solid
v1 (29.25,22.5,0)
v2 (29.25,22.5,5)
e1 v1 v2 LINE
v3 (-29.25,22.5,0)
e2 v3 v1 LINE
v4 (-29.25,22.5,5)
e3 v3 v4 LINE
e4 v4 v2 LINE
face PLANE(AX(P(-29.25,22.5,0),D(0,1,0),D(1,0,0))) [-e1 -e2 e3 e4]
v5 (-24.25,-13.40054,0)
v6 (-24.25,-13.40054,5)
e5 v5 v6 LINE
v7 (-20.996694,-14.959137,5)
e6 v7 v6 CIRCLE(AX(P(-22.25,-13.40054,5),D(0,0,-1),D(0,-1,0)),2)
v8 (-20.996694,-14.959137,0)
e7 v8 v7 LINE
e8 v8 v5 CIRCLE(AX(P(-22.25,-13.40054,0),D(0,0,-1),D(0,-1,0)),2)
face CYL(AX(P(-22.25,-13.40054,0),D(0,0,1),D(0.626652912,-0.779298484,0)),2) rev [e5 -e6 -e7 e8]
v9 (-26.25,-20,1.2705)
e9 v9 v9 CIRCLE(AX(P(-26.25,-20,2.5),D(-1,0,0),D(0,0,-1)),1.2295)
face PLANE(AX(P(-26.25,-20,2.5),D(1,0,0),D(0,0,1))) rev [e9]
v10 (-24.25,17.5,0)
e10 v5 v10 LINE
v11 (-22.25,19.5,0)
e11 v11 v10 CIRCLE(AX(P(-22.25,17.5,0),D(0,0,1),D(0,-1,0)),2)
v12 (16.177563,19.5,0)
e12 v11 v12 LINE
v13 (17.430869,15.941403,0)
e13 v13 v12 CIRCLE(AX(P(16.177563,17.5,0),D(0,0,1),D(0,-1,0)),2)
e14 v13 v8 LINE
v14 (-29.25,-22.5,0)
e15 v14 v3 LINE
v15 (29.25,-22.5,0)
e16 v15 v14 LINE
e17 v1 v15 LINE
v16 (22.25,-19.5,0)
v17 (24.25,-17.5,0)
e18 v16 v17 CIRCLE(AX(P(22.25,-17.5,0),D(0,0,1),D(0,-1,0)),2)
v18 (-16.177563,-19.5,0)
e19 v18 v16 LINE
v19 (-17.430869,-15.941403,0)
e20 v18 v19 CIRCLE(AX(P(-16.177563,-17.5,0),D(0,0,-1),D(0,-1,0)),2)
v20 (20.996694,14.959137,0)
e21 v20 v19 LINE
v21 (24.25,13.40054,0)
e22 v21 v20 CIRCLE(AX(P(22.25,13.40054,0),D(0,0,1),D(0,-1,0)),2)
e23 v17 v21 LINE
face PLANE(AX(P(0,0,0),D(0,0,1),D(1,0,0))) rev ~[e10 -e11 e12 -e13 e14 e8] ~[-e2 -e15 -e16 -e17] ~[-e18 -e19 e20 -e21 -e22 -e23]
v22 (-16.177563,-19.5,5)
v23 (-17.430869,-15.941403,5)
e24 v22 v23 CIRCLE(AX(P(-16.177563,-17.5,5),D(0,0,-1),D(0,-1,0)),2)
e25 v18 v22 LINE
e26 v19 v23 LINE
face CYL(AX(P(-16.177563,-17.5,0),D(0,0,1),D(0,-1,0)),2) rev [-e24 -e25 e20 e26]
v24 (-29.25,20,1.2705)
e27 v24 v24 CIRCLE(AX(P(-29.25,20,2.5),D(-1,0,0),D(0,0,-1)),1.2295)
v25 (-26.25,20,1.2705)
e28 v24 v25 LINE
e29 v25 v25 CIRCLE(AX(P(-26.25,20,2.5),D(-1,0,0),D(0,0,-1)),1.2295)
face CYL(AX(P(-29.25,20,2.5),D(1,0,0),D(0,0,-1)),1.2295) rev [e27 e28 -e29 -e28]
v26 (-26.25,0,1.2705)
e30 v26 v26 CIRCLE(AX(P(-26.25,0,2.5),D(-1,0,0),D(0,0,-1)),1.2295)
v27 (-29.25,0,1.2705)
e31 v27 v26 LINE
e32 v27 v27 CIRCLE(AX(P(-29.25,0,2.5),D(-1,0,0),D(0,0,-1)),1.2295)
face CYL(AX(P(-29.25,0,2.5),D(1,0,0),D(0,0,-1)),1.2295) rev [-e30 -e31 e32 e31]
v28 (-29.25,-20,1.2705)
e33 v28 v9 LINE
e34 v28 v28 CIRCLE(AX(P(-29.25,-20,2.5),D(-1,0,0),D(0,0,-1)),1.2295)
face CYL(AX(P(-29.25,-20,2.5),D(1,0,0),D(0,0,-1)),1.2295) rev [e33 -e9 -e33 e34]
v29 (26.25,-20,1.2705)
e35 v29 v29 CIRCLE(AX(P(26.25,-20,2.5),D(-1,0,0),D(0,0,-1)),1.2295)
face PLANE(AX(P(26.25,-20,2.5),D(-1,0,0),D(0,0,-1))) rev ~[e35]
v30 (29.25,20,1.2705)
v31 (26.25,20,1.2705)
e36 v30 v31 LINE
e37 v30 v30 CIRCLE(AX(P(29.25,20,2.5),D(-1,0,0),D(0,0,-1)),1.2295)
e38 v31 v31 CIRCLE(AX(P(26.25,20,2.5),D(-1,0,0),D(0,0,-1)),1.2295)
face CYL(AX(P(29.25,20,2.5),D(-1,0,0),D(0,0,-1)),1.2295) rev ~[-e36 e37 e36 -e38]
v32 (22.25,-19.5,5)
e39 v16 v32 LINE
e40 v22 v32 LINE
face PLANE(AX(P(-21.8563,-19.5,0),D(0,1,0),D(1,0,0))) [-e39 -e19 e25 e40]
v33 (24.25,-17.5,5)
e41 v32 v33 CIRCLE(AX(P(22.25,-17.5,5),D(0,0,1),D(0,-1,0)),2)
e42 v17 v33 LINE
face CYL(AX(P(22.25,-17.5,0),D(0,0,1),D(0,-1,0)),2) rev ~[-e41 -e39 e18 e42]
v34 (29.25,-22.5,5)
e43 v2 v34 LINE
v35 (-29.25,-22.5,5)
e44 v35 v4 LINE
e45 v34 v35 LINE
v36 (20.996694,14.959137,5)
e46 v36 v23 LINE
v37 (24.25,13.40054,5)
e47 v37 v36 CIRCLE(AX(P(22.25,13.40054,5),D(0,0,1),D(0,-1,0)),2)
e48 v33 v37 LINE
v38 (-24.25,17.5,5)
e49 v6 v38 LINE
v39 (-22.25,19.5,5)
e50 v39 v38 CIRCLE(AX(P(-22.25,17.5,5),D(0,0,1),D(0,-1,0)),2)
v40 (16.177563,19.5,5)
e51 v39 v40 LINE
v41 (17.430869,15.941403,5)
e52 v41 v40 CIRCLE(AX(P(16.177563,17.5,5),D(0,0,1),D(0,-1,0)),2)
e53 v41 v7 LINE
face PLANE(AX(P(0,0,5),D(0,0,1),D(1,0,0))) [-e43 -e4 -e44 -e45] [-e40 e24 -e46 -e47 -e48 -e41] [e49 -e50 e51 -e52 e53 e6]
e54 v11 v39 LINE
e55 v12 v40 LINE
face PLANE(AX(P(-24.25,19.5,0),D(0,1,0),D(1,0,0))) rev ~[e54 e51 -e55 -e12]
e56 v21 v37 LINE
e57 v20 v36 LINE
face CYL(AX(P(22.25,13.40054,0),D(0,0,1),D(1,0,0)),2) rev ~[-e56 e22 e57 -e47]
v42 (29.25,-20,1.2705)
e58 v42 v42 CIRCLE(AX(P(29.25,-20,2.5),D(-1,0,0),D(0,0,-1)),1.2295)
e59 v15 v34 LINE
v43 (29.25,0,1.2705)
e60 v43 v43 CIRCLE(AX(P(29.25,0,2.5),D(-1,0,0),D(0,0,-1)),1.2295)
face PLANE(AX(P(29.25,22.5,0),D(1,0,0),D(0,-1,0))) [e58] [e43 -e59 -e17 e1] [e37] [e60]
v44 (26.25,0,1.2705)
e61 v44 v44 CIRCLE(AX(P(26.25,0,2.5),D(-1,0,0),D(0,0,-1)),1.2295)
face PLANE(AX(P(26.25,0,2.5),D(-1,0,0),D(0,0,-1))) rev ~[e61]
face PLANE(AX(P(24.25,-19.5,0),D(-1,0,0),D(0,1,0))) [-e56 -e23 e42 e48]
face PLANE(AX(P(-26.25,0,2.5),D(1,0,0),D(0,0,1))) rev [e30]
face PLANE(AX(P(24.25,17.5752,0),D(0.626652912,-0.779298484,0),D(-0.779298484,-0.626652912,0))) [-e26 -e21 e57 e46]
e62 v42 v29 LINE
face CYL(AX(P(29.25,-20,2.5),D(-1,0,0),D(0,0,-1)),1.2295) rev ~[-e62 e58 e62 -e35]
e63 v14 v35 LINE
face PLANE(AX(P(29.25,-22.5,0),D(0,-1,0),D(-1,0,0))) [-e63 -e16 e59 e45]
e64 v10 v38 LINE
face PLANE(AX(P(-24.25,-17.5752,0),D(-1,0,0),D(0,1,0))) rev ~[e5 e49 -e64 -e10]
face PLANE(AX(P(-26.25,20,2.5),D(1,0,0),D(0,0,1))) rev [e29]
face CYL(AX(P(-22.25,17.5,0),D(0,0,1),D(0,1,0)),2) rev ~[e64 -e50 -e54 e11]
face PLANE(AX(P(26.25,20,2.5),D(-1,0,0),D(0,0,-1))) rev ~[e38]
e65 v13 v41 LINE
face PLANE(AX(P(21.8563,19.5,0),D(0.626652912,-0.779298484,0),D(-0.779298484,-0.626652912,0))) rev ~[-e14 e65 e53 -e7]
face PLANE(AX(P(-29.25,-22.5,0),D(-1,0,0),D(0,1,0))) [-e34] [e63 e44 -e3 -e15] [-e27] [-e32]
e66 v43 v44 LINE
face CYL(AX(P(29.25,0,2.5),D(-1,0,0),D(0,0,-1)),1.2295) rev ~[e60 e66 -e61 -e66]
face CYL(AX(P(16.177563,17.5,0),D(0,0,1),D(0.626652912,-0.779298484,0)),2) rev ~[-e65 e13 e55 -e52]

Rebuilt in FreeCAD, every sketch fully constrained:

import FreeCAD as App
import Part
import Sketcher
from FreeCAD import Vector
Q = App.Units.Quantity


def edges_at(feature, points):
    """Names of the edges that pass closest to the given points."""
    edges = feature.Shape.Edges
    near = lambda p: min(range(len(edges)), key=lambda i: edges[i].distToShape(Part.Vertex(*p))[0])
    return sorted({f"Edge{near(p) + 1}" for p in points})

doc = App.newDocument("Part")
body = doc.addObject("PartDesign::Body", "Body")

# Sketch on XY plane
sketch1 = doc.addObject("Sketcher::SketchObject", "Sketch")
body.addObject(sketch1)
sketch1.AttachmentSupport = (doc.XY_Plane, [""])
sketch1.MapMode = "FlatFace"
sketch1.addGeometry([
    Part.LineSegment(Vector(29.25, 22.5, 0), Vector(-29.25, 22.5, 0)),  # 0
    Part.LineSegment(Vector(-29.25, 22.5, 0), Vector(-29.25, -22.5, 0)),  # 1
    Part.LineSegment(Vector(-29.25, -22.5, 0), Vector(29.25, -22.5, 0)),  # 2
    Part.LineSegment(Vector(29.25, -22.5, 0), Vector(29.25, 22.5, 0)),  # 3
    Part.LineSegment(Vector(24.25, -19.5, 0), Vector(-21.8563, -19.5, 0)),  # 4
    Part.LineSegment(Vector(-21.8563, -19.5, 0), Vector(24.25, 17.5752, 0)),  # 5
    Part.LineSegment(Vector(24.25, 17.5752, 0), Vector(24.25, -19.5, 0)),  # 6
    Part.LineSegment(Vector(21.8563, 19.5, 0), Vector(-24.25, -17.5752, 0)),  # 7
    Part.LineSegment(Vector(-24.25, -17.5752, 0), Vector(-24.25, 19.5, 0)),  # 8
    Part.LineSegment(Vector(-24.25, 19.5, 0), Vector(21.8563, 19.5, 0)),  # 9
], False)
sketch1.addConstraint([
    Sketcher.Constraint("Coincident", 0, 2, 1, 1),
    Sketcher.Constraint("Coincident", 1, 2, 2, 1),
    Sketcher.Constraint("Coincident", 2, 2, 3, 1),
    Sketcher.Constraint("Coincident", 3, 2, 0, 1),
    Sketcher.Constraint("Coincident", 4, 2, 5, 1),
    Sketcher.Constraint("Coincident", 5, 2, 6, 1),
    Sketcher.Constraint("Coincident", 6, 2, 4, 1),
    Sketcher.Constraint("Coincident", 7, 2, 8, 1),
    Sketcher.Constraint("Coincident", 8, 2, 9, 1),
    Sketcher.Constraint("Coincident", 9, 2, 7, 1),
    Sketcher.Constraint("Horizontal", 0),
    Sketcher.Constraint("Vertical", 1),
    Sketcher.Constraint("Horizontal", 2),
    Sketcher.Constraint("Vertical", 3),
    Sketcher.Constraint("Horizontal", 4),
    Sketcher.Constraint("Vertical", 6),
    Sketcher.Constraint("Vertical", 8),
    Sketcher.Constraint("Horizontal", 9),
    Sketcher.Constraint("Symmetric", 0, 2, 2, 2, -1, 1),
    Sketcher.Constraint("Symmetric", 5, 2, 7, 2, -1, 1),
    Sketcher.Constraint("Symmetric", 4, 2, 9, 2, -1, 1),
    Sketcher.Constraint("DistanceX", 0, 2, 0, 1, Q("58.5 mm")),
    Sketcher.Constraint("DistanceY", 1, 2, 4, 2, Q("3 mm")),
    Sketcher.Constraint("DistanceX", 5, 2, 3, 2, Q("5 mm")),
    Sketcher.Constraint("DistanceY", 1, 2, 1, 1, Q("45 mm")),
    Sketcher.Constraint("DistanceX", 4, 2, 4, 1, Q("46.1063 mm")),
    Sketcher.Constraint("DistanceY", 6, 2, 6, 1, Q("37.0752 mm")),
])
pad1 = doc.addObject("PartDesign::Pad", "Pad")
body.addObject(pad1)
pad1.Profile = sketch1
pad1.Length = 5

# Sketch on YZ plane
sketch2 = doc.addObject("Sketcher::SketchObject", "Sketch001")
body.addObject(sketch2)
sketch2.AttachmentSupport = (doc.YZ_Plane, [""])
sketch2.MapMode = "FlatFace"
sketch2.AttachmentOffset = App.Placement(Vector(0, 0, 29.25), App.Rotation())
sketch2.addGeometry([
    Part.Circle(Vector(-20, 2.5, 0), Vector(0, 0, 1), 1.2295),
    Part.Circle(Vector(0, 2.5, 0), Vector(0, 0, 1), 1.2295),
    Part.Circle(Vector(20, 2.5, 0), Vector(0, 0, 1), 1.2295),
], False)
sketch2.addConstraint([
    Sketcher.Constraint("Equal", 0, 1),
    Sketcher.Constraint("Equal", 1, 2),
    Sketcher.Constraint("Symmetric", 0, 3, 2, 3, -2),
    Sketcher.Constraint("PointOnObject", 1, 3, -2),
    Sketcher.Constraint("Horizontal", 0, 3, 1, 3),
    Sketcher.Constraint("Diameter", 0, Q("2.459 mm")),
    Sketcher.Constraint("DistanceX", 0, 3, -1, 1, Q("20 mm")),
    Sketcher.Constraint("DistanceY", -1, 1, 0, 3, Q("2.5 mm")),
])
doc.recompute()
hole = doc.addObject("PartDesign::Hole", "Hole")
body.addObject(hole)
hole.Profile = sketch2
hole.ThreadType = "None"
hole.Diameter = 2.459
hole.DepthType = "Dimension"
hole.Depth = 3
hole.DrillPoint = "Flat"
doc.recompute()

mirrored = doc.addObject("PartDesign::Mirrored", "Mirrored")
body.addObject(mirrored)
mirrored.Originals = [hole]
mirrored.MirrorPlane = (doc.YZ_Plane, [""])
body.Tip = mirrored
doc.recompute()

fillet = doc.addObject("PartDesign::Fillet", "Fillet")
body.addObject(fillet)
fillet.Base = (mirrored, edges_at(mirrored, [
    (-21.856, -19.5, 2.5),
    (-24.25, -17.575, 2.5),
    (24.25, 17.575, 2.5),
    (24.25, -19.5, 2.5),
    (-24.25, 19.5, 2.5),
    (21.856, 19.5, 2.5),
]))
fillet.Radius = 2

doc.recompute()
